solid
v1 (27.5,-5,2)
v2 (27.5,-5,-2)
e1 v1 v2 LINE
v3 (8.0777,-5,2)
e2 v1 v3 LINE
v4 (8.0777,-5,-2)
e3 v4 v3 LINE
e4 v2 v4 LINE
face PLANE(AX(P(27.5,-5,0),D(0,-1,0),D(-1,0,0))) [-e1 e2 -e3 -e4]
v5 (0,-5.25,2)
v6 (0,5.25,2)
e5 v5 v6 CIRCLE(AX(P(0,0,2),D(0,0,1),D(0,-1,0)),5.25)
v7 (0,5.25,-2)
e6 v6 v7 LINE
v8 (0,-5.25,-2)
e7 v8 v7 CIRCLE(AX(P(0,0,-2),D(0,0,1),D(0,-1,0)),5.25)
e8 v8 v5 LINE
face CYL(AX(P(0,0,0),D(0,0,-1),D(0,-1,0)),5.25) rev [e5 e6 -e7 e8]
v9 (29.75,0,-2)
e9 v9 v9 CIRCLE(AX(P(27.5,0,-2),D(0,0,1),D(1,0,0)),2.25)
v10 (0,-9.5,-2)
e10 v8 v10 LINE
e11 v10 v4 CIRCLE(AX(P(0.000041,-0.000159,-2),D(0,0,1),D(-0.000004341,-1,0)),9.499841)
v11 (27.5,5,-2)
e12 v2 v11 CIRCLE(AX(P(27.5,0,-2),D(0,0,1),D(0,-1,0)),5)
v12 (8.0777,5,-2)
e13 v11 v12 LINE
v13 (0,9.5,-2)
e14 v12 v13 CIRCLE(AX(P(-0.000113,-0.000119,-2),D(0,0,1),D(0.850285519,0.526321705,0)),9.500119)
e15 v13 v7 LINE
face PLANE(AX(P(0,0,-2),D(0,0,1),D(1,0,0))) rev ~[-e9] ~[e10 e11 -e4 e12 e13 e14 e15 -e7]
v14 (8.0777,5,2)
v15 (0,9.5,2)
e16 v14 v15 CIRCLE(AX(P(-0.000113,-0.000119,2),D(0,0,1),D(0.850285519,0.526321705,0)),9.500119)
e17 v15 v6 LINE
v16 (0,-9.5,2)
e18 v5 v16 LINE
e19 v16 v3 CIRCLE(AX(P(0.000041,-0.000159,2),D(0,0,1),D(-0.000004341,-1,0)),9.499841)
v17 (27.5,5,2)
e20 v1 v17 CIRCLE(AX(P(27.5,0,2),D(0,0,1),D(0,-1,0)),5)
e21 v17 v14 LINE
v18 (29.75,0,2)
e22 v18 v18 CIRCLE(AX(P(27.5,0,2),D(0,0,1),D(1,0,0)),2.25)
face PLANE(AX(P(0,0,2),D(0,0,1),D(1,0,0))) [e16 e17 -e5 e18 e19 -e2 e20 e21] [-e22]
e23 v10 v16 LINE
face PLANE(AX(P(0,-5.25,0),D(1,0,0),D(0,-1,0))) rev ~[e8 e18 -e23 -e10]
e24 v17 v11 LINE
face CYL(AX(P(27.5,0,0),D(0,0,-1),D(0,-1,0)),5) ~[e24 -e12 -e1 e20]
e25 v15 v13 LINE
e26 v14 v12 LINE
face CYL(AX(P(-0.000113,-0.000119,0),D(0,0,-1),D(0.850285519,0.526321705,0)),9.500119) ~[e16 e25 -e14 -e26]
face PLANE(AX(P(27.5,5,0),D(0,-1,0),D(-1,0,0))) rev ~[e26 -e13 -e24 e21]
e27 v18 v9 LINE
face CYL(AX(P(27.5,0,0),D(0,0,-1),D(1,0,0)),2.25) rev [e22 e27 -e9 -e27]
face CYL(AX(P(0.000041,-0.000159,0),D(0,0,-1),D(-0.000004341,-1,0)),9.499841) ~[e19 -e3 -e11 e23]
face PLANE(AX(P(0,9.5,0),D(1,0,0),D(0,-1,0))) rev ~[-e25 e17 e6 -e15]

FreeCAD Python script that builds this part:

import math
import FreeCAD as App
import Part
import Sketcher

V = App.Vector
Q = App.Units.Quantity

doc = App.newDocument("Part")
body = doc.addObject("PartDesign::Body", "Body")

# Sketch on XY plane
sketch1 = body.newObject("Sketcher::SketchObject", "Sketch")
sketch1.AttachmentSupport = (doc.getObject("XY_Plane"), [""])
sketch1.MapMode = "FlatFace"
sketch1.addGeometry([
    Part.ArcOfCircle(Part.Circle(V(0, 0, 0), V(0, 0, 1), 5.25), math.radians(-90), math.radians(90)),  # 0
    Part.LineSegment(V(0, -5.25, 0), V(0, -9.5, 0)),  # 1
    Part.ArcOfCircle(Part.Circle(V(0, 0, 0), V(0, 0, 1), 9.49996), math.radians(-90), math.radians(-31.757014)),  # 2
    Part.LineSegment(V(8.0777, -5, 0), V(27.5, -5, 0)),  # 3
    Part.ArcOfCircle(Part.Circle(V(27.5, 0, 0), V(0, 0, 1), 5), math.radians(-90), math.radians(90)),  # 4
    Part.LineSegment(V(27.5, 5, 0), V(8.0777, 5, 0)),  # 5
    Part.ArcOfCircle(Part.Circle(V(0, 0, 0), V(0, 0, 1), 9.5), math.radians(31.757014), math.radians(90)),  # 6
    Part.LineSegment(V(0, 9.5, 0), V(0, 5.25, 0)),  # 7
    Part.Circle(V(27.5, 0, 0), V(0, 0, 1), 2.25),  # 8
], False)
sketch1.addConstraint([
    Sketcher.Constraint("Coincident", 0, 1, 1, 1),
    Sketcher.Constraint("Coincident", 1, 2, 2, 1),
    Sketcher.Constraint("Coincident", 2, 2, 3, 1),
    Sketcher.Constraint("Tangent", 3, 2, 4, 1),
    Sketcher.Constraint("Tangent", 4, 2, 5, 1),
    Sketcher.Constraint("Coincident", 5, 2, 6, 1),
    Sketcher.Constraint("Coincident", 6, 2, 7, 1),
    Sketcher.Constraint("Coincident", 7, 2, 0, 2),
    Sketcher.Constraint("Vertical", 1),
    Sketcher.Constraint("Horizontal", 3),
    Sketcher.Constraint("Horizontal", 5),
    Sketcher.Constraint("Vertical", 7),
    Sketcher.Constraint("Coincident", 0, 3, -1, 1),
    Sketcher.Constraint("Coincident", 2, 3, -1, 1),
    Sketcher.Constraint("Coincident", 6, 3, -1, 1),
    Sketcher.Constraint("Coincident", 8, 3, 4, 3),
    Sketcher.Constraint("Equal", 2, 6),
    Sketcher.Constraint("PointOnObject", 4, 3, -1),
    Sketcher.Constraint("PointOnObject", 0, 1, -2),
    Sketcher.Constraint("PointOnObject", 6, 2, -2),
    Sketcher.Constraint("Radius", 4, Q("5 mm")),
    Sketcher.Constraint("Diameter", 8, Q("4.5 mm")),
    Sketcher.Constraint("Radius", 2, Q("9.5 mm")),
    Sketcher.Constraint("Radius", 0, Q("5.25 mm")),
    Sketcher.Constraint("DistanceX", -1, 1, 4, 3, Q("27.5 mm")),
])
pad1 = body.newObject("PartDesign::Pad", "Pad")
pad1.Profile = sketch1
pad1.Length = 4
pad1.Midplane = True

doc.recompute()
